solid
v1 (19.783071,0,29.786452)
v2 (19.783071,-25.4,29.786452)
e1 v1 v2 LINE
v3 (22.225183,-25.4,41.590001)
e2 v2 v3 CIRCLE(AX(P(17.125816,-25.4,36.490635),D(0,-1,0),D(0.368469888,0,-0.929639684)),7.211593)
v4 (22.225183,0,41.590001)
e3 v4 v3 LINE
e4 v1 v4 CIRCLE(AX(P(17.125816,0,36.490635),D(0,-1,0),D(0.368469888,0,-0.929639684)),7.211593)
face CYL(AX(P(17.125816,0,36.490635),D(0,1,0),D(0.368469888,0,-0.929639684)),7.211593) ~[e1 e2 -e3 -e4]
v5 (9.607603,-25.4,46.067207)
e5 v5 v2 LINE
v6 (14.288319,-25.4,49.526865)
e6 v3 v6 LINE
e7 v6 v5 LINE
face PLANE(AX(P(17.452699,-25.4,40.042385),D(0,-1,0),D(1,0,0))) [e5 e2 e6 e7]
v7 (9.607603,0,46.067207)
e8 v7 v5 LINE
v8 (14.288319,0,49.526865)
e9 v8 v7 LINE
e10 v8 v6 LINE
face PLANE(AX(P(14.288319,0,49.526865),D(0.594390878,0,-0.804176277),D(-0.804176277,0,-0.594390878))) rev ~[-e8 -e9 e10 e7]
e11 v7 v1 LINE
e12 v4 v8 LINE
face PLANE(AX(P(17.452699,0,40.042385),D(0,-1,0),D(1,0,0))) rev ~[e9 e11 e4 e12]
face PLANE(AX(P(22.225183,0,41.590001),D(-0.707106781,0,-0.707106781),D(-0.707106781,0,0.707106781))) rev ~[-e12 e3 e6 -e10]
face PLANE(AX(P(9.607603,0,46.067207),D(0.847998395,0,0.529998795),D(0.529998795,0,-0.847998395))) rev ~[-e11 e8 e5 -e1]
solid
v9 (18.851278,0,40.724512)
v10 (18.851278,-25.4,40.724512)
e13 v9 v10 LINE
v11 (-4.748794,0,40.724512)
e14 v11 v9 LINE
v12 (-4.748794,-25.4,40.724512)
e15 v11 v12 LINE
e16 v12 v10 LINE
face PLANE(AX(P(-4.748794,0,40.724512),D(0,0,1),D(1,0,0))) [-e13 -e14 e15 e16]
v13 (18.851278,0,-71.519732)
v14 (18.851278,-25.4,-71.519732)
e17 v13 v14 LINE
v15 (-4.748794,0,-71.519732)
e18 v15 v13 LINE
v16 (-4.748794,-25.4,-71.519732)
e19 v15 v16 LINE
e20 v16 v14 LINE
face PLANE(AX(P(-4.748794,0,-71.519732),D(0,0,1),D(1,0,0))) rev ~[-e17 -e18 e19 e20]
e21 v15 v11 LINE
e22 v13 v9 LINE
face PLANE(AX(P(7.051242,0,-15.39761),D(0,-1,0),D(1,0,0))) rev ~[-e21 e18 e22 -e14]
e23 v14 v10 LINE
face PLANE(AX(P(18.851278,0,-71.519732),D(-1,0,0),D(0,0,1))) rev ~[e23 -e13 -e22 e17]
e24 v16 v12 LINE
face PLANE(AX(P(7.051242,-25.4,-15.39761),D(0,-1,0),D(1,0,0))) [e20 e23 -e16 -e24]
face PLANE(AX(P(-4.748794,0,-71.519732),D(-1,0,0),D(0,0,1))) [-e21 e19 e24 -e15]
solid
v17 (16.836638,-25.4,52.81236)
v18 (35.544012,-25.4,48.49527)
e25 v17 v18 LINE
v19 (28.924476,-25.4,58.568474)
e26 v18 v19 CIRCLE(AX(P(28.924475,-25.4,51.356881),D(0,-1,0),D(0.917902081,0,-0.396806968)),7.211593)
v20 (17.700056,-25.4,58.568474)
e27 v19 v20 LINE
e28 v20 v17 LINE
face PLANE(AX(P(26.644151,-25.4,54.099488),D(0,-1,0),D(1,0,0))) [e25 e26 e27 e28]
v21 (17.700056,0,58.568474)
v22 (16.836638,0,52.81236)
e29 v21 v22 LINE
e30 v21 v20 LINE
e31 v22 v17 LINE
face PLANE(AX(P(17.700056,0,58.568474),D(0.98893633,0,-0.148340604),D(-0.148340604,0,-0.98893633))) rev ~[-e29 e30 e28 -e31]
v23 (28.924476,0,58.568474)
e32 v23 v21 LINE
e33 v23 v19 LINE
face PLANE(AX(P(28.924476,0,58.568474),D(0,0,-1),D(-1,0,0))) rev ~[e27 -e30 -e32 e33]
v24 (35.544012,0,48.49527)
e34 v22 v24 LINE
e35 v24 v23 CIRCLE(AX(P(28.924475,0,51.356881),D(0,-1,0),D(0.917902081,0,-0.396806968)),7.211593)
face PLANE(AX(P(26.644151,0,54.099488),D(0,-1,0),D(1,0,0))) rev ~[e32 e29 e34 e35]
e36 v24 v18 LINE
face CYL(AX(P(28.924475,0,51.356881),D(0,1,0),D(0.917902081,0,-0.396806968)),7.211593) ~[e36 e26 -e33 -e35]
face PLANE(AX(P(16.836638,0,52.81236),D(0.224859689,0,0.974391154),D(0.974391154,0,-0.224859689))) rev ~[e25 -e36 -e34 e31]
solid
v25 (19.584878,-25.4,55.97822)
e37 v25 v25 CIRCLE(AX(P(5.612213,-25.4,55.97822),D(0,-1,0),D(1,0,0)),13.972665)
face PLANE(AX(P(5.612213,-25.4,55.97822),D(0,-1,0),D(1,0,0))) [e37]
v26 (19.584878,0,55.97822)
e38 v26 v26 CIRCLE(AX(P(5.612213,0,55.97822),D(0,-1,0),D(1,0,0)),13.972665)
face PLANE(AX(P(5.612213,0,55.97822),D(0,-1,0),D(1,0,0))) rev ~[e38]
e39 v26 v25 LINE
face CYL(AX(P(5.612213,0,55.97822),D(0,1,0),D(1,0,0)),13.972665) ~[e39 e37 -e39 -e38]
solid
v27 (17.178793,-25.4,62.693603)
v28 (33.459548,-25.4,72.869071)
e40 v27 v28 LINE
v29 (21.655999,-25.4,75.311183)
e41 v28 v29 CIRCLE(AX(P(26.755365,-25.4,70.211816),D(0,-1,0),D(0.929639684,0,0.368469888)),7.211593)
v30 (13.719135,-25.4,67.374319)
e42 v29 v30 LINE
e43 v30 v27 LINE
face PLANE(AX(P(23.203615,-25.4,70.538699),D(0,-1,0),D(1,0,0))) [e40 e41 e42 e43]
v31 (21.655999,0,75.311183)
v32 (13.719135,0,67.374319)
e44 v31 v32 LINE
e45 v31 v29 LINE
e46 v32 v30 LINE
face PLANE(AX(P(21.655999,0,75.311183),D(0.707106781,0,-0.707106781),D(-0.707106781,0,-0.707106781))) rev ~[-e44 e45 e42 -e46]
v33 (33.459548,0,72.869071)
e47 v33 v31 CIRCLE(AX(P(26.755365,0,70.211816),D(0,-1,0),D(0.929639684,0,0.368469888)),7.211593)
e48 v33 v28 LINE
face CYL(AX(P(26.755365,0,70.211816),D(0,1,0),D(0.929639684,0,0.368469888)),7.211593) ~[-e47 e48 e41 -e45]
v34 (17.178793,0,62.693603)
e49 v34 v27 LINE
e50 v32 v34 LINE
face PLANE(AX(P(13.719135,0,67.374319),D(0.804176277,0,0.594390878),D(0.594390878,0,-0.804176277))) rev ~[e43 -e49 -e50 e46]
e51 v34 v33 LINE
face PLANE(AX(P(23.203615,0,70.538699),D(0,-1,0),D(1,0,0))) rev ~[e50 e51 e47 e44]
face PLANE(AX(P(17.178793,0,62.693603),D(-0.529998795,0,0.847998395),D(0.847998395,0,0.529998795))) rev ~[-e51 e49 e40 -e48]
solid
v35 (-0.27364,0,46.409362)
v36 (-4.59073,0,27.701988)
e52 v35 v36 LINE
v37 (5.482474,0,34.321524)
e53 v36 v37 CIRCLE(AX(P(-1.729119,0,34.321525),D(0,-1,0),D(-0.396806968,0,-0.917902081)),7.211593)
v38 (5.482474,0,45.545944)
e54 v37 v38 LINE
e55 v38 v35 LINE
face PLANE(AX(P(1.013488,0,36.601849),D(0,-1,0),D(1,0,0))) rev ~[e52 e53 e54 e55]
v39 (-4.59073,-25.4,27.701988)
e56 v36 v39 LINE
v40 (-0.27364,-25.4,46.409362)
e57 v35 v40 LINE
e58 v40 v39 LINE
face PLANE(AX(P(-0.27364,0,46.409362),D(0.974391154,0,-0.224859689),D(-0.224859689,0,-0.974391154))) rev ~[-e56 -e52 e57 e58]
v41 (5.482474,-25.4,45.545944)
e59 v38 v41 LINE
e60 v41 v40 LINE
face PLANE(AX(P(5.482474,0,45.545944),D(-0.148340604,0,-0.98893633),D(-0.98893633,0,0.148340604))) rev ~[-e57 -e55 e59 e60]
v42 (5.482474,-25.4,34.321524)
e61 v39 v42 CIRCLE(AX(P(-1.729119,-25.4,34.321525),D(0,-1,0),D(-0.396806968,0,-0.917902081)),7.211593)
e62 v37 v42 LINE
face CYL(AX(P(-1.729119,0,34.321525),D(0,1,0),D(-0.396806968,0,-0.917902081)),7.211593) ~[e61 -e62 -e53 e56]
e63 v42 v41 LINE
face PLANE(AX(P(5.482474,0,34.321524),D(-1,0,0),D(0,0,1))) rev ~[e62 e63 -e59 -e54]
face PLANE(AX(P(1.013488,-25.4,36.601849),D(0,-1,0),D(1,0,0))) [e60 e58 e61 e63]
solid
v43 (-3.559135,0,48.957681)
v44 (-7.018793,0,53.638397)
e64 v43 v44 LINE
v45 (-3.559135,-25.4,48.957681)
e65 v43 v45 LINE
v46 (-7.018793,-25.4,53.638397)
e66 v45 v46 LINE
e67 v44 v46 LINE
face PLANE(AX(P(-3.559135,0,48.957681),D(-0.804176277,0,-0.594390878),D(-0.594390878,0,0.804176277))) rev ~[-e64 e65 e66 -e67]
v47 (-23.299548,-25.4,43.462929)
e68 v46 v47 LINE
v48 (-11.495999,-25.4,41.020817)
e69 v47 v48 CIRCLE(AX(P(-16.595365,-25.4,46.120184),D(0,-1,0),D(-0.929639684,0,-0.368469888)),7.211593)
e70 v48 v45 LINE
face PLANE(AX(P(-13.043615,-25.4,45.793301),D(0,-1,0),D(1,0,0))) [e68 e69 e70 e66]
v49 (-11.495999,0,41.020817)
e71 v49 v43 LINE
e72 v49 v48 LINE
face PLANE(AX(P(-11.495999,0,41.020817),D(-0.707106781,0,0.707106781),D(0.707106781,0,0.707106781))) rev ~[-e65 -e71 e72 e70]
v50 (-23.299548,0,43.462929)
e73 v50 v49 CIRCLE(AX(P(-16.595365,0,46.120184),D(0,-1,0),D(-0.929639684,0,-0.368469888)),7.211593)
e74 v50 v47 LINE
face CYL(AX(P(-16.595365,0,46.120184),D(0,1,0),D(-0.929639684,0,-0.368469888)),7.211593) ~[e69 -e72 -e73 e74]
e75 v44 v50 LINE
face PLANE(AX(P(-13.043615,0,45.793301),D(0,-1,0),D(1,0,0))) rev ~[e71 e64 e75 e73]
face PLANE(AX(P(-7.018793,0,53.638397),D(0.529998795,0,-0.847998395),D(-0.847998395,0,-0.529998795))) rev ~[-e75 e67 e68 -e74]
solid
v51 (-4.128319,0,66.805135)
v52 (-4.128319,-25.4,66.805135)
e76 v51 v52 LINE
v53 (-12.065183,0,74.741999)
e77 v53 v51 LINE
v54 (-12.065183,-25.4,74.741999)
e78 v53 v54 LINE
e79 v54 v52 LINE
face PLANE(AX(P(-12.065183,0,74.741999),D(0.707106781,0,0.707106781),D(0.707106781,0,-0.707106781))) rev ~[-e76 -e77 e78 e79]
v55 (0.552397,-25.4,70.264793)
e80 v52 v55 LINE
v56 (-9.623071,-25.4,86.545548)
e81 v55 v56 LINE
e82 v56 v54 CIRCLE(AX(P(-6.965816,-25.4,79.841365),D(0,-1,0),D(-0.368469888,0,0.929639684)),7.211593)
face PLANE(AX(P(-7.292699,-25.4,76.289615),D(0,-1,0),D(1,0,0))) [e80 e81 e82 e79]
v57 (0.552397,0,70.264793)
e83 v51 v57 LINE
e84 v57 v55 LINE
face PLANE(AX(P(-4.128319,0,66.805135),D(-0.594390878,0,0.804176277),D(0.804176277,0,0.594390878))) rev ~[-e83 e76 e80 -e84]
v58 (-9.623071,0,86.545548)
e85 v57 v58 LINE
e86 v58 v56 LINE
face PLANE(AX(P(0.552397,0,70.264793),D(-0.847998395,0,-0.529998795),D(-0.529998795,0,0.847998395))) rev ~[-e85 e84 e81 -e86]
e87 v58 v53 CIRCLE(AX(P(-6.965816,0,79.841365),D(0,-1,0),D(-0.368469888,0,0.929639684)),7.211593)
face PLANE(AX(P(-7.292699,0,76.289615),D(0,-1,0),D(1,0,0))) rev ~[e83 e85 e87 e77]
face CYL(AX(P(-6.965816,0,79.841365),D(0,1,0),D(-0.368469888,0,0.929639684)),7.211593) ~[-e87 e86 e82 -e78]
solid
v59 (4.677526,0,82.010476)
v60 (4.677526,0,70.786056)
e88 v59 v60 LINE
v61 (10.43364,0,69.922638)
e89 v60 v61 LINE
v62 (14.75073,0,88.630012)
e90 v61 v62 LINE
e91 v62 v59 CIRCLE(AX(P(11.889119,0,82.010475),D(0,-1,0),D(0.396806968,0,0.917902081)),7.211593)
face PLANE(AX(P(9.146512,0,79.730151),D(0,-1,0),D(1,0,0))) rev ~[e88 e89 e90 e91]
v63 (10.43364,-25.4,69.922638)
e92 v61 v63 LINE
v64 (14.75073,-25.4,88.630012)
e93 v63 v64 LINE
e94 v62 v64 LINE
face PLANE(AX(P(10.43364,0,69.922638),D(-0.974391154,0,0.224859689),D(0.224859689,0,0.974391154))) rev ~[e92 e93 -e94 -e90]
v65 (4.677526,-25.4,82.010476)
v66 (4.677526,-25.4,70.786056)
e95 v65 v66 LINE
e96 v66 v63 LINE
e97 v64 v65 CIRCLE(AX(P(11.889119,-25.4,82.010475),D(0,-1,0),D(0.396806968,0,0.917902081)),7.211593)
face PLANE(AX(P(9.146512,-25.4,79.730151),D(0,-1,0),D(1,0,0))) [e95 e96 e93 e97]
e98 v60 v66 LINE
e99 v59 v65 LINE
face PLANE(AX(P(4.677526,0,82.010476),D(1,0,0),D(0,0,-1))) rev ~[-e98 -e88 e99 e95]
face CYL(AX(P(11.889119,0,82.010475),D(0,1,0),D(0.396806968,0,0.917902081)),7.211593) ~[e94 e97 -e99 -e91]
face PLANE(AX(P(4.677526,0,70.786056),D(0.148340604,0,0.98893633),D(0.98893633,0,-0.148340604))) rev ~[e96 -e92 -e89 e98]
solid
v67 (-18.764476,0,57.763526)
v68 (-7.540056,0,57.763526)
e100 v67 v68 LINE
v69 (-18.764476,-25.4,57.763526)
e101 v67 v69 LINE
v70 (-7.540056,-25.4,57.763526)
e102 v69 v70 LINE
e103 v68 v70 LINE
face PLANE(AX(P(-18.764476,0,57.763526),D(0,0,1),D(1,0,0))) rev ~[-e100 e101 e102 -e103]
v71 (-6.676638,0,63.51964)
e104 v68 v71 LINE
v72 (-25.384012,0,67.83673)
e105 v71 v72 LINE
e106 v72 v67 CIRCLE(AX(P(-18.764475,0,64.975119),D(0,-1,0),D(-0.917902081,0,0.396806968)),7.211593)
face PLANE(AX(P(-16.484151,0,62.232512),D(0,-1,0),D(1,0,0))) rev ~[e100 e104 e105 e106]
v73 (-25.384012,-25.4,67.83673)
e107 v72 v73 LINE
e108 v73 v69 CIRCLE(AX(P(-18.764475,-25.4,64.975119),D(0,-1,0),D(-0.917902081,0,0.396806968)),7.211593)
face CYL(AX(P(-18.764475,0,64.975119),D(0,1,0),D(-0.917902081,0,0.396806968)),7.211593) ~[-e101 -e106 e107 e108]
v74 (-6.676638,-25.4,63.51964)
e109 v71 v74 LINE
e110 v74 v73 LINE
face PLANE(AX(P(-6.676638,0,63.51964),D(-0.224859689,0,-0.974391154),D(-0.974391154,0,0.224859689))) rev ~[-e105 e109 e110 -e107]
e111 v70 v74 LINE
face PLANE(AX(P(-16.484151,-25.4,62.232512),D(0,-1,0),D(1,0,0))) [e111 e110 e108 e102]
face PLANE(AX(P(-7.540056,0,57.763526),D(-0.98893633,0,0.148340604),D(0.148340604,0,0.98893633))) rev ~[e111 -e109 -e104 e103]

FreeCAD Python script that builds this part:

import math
import FreeCAD as App
import Part
import Sketcher
Q = App.Units.Quantity

doc = App.newDocument("Part")
body = doc.addObject("PartDesign::Body", "Body")

# Sketch on XZ plane
sketch1 = body.newObject("Sketcher::SketchObject", "Sketch")
sketch1.AttachmentSupport = (doc.getObject("XZ_Plane"), [""])
sketch1.MapMode = "FlatFace"
sketch1.addGeometry([
    Part.LineSegment(App.Vector(-4.748794, 40.724512, 0), App.Vector(-4.748794, -71.519732, 0)),
    Part.LineSegment(App.Vector(-4.748794, -71.519732, 0), App.Vector(18.851278, -71.519732, 0)),
    Part.LineSegment(App.Vector(18.851278, -71.519732, 0), App.Vector(18.851278, 40.724512, 0)),
    Part.LineSegment(App.Vector(18.851278, 40.724512, 0), App.Vector(-4.748794, 40.724512, 0)),
], False)
sketch1.addConstraint([
    Sketcher.Constraint("Coincident", 0, 2, 1, 1),
    Sketcher.Constraint("Coincident", 1, 2, 2, 1),
    Sketcher.Constraint("Coincident", 2, 2, 3, 1),
    Sketcher.Constraint("Coincident", 3, 2, 0, 1),
    Sketcher.Constraint("Vertical", 0),
    Sketcher.Constraint("Horizontal", 1),
    Sketcher.Constraint("Vertical", 2),
    Sketcher.Constraint("Horizontal", 3),
    Sketcher.Constraint("DistanceX", 1, 1, 1, 2, Q("23.600073 mm")),
    Sketcher.Constraint("DistanceY", 0, 2, 0, 1, Q("112.244244 mm")),
    Sketcher.Constraint("DistanceX", -1, 1, 1, 2, Q("18.851278 mm")),
    Sketcher.Constraint("DistanceY", -1, 1, 2, 2, Q("40.724512 mm")),
])
pad1 = body.newObject("PartDesign::Pad", "Pad")
pad1.Profile = sketch1
pad1.Length = Q("1 in")
body2 = doc.addObject("PartDesign::Body", "Body001")

# Sketch on XZ plane
sketch2 = body2.newObject("Sketcher::SketchObject", "Sketch001")
sketch2.AttachmentSupport = (doc.getObject("XZ_Plane001"), [""])
sketch2.MapMode = "FlatFace"
sketch2.addGeometry(Part.Circle(App.Vector(5.612213, 55.97822, 0), App.Vector(0, 0, 1), 13.972665), False)
sketch2.addConstraint([
    Sketcher.Constraint("Diameter", 0, Q("27.94533 mm")),
    Sketcher.Constraint("DistanceY", -1, 1, 0, 3, Q("55.97822 mm")),
    Sketcher.Constraint("DistanceX", -1, 1, 0, 3, Q("5.612213 mm")),
])
pad2 = body2.newObject("PartDesign::Pad", "Pad001")
pad2.Profile = sketch2
pad2.Length = Q("1 in")
body3 = doc.addObject("PartDesign::Body", "Body002")
body3.AllowCompound = True

# Sketch on XZ plane
sketch3 = body3.newObject("Sketcher::SketchObject", "Sketch002")
sketch3.AttachmentSupport = (doc.getObject("XZ_Plane002"), [""])
sketch3.MapMode = "FlatFace"
sketch3.addGeometry([
    Part.LineSegment(App.Vector(-3.559135, 48.957681, 0), App.Vector(-7.018793, 53.638397, 0)),  # 0
    Part.LineSegment(App.Vector(-7.018793, 53.638397, 0), App.Vector(-23.299548, 43.462929, 0)),  # 1
    Part.ArcOfCircle(Part.Circle(App.Vector(-16.595365, 46.120184, 0), App.Vector(0, 0, 1), 7.211593), math.radians(-158.378718), math.radians(-45.000006)),  # 2
    Part.LineSegment(App.Vector(-11.495999, 41.020817, 0), App.Vector(-3.559135, 48.957681, 0)),  # 3
    Part.LineSegment(App.Vector(-7.540056, 57.763526, 0), App.Vector(-6.676638, 63.51964, 0)),  # 4
    Part.LineSegment(App.Vector(-6.676638, 63.51964, 0), App.Vector(-25.384012, 67.83673, 0)),  # 5
    Part.ArcOfCircle(Part.Circle(App.Vector(-18.764475, 64.975119, 0), App.Vector(0, 0, 1), 7.211593), math.radians(156.621282), math.radians(269.999995)),  # 6
    Part.LineSegment(App.Vector(-18.764476, 57.763526, 0), App.Vector(-7.540056, 57.763526, 0)),  # 7
    Part.LineSegment(App.Vector(-4.128319, 66.805135, 0), App.Vector(0.552397, 70.264793, 0)),  # 8
    Part.LineSegment(App.Vector(0.552397, 70.264793, 0), App.Vector(-9.623071, 86.545548, 0)),  # 9
    Part.ArcOfCircle(Part.Circle(App.Vector(-6.965816, 79.841365, 0), App.Vector(0, 0, 1), 7.211593), math.radians(111.621282), math.radians(224.999994)),  # 10
    Part.LineSegment(App.Vector(-12.065183, 74.741999, 0), App.Vector(-4.128319, 66.805135, 0)),  # 11
    Part.LineSegment(App.Vector(4.677526, 70.786056, 0), App.Vector(10.43364, 69.922638, 0)),  # 12
    Part.LineSegment(App.Vector(10.43364, 69.922638, 0), App.Vector(14.75073, 88.630012, 0)),  # 13
    Part.ArcOfCircle(Part.Circle(App.Vector(11.889119, 82.010475, 0), App.Vector(0, 0, 1), 7.211593), math.radians(66.621282), math.radians(179.999995)),  # 14
    Part.LineSegment(App.Vector(4.677526, 82.010476, 0), App.Vector(4.677526, 70.786056, 0)),  # 15
    Part.LineSegment(App.Vector(13.719135, 67.374319, 0), App.Vector(17.178793, 62.693603, 0)),  # 16
    Part.LineSegment(App.Vector(17.178793, 62.693603, 0), App.Vector(33.459548, 72.869071, 0)),  # 17
    Part.ArcOfCircle(Part.Circle(App.Vector(26.755365, 70.211816, 0), App.Vector(0, 0, 1), 7.211593), math.radians(21.621282), math.radians(134.999994)),  # 18
    Part.LineSegment(App.Vector(21.655999, 75.311183, 0), App.Vector(13.719135, 67.374319, 0)),  # 19
    Part.LineSegment(App.Vector(17.700056, 58.568474, 0), App.Vector(16.836638, 52.81236, 0)),  # 20
    Part.LineSegment(App.Vector(16.836638, 52.81236, 0), App.Vector(35.544012, 48.49527, 0)),  # 21
    Part.ArcOfCircle(Part.Circle(App.Vector(28.924475, 51.356881, 0), App.Vector(0, 0, 1), 7.211593), math.radians(-23.378718), math.radians(89.999995)),  # 22
    Part.LineSegment(App.Vector(28.924476, 58.568474, 0), App.Vector(17.700056, 58.568474, 0)),  # 23
    Part.LineSegment(App.Vector(14.288319, 49.526865, 0), App.Vector(9.607603, 46.067207, 0)),  # 24
    Part.LineSegment(App.Vector(9.607603, 46.067207, 0), App.Vector(19.783071, 29.786452, 0)),  # 25
    Part.ArcOfCircle(Part.Circle(App.Vector(17.125816, 36.490635, 0), App.Vector(0, 0, 1), 7.211593), math.radians(-68.378718), math.radians(44.999994)),  # 26
    Part.LineSegment(App.Vector(22.225183, 41.590001, 0), App.Vector(14.288319, 49.526865, 0)),  # 27
    Part.LineSegment(App.Vector(5.482474, 45.545944, 0), App.Vector(-0.27364, 46.409362, 0)),  # 28
    Part.LineSegment(App.Vector(-0.27364, 46.409362, 0), App.Vector(-4.59073, 27.701988, 0)),  # 29
    Part.ArcOfCircle(Part.Circle(App.Vector(-1.729119, 34.321525, 0), App.Vector(0, 0, 1), 7.211593), math.radians(-113.378718), math.radians(-0.000005)),  # 30
    Part.LineSegment(App.Vector(5.482474, 34.321524, 0), App.Vector(5.482474, 45.545944, 0)),  # 31
], False)
sketch3.addConstraint([
    Sketcher.Constraint("Coincident", 0, 2, 1, 1),
    Sketcher.Constraint("Coincident", 1, 2, 2, 1),
    Sketcher.Constraint("Tangent", 2, 2, 3, 1),
    Sketcher.Constraint("Coincident", 3, 2, 0, 1),
    Sketcher.Constraint("Coincident", 4, 2, 5, 1),
    Sketcher.Constraint("Coincident", 5, 2, 6, 1),
    Sketcher.Constraint("Tangent", 6, 2, 7, 1),
    Sketcher.Constraint("Coincident", 7, 2, 4, 1),
    Sketcher.Constraint("Coincident", 8, 2, 9, 1),
    Sketcher.Constraint("Coincident", 9, 2, 10, 1),
    Sketcher.Constraint("Tangent", 10, 2, 11, 1),
    Sketcher.Constraint("Coincident", 11, 2, 8, 1),
    Sketcher.Constraint("Coincident", 12, 2, 13, 1),
    Sketcher.Constraint("Coincident", 13, 2, 14, 1),
    Sketcher.Constraint("Tangent", 14, 2, 15, 1),
    Sketcher.Constraint("Coincident", 15, 2, 12, 1),
    Sketcher.Constraint("Coincident", 16, 2, 17, 1),
    Sketcher.Constraint("Coincident", 17, 2, 18, 1),
    Sketcher.Constraint("Tangent", 18, 2, 19, 1),
    Sketcher.Constraint("Coincident", 19, 2, 16, 1),
    Sketcher.Constraint("Coincident", 20, 2, 21, 1),
    Sketcher.Constraint("Coincident", 21, 2, 22, 1),
    Sketcher.Constraint("Tangent", 22, 2, 23, 1),
    Sketcher.Constraint("Coincident", 23, 2, 20, 1),
    Sketcher.Constraint("Coincident", 24, 2, 25, 1),
    Sketcher.Constraint("Coincident", 25, 2, 26, 1),
    Sketcher.Constraint("Tangent", 26, 2, 27, 1),
    Sketcher.Constraint("Coincident", 27, 2, 24, 1),
    Sketcher.Constraint("Coincident", 28, 2, 29, 1),
    Sketcher.Constraint("Coincident", 29, 2, 30, 1),
    Sketcher.Constraint("Tangent", 30, 2, 31, 1),
    Sketcher.Constraint("Coincident", 31, 2, 28, 1),
    Sketcher.Constraint("Horizontal", 7),
    Sketcher.Constraint("Vertical", 15),
    Sketcher.Constraint("Horizontal", 23),
    Sketcher.Constraint("Vertical", 31),
    Sketcher.Constraint("Equal", 2, 6),
    Sketcher.Constraint("Equal", 6, 10),
    Sketcher.Constraint("Equal", 10, 14),
    Sketcher.Constraint("Equal", 14, 18),
    Sketcher.Constraint("Equal", 18, 22),
    Sketcher.Constraint("Equal", 22, 26),
    Sketcher.Constraint("Equal", 26, 30),
    Sketcher.Constraint("Perpendicular", 0, 8),
    Sketcher.Constraint("Perpendicular", 1, 9),
    Sketcher.Constraint("Perpendicular", 3, 11),
    Sketcher.Constraint("Perpendicular", 4, 12),
    Sketcher.Constraint("Perpendicular", 5, 13),
    Sketcher.Constraint("Perpendicular", 8, 16),
    Sketcher.Constraint("Perpendicular", 9, 17),
    Sketcher.Constraint("Perpendicular", 11, 19),
    Sketcher.Constraint("Perpendicular", 12, 20),
    Sketcher.Constraint("Perpendicular", 13, 21),
    Sketcher.Constraint("Perpendicular", 16, 24),
    Sketcher.Constraint("Perpendicular", 17, 25),
    Sketcher.Constraint("Perpendicular", 19, 27),
    Sketcher.Constraint("Perpendicular", 20, 28),
    Sketcher.Constraint("Perpendicular", 21, 29),
    Sketcher.Constraint("Equal", 7, 23),
    Sketcher.Constraint("Equal", 23, 15),
    Sketcher.Constraint("Equal", 15, 31),
    Sketcher.Constraint("Equal", 0, 4),
    Sketcher.Constraint("Equal", 1, 5),
    Sketcher.Constraint("Equal", 4, 8),
    Sketcher.Constraint("Equal", 5, 9),
    Sketcher.Constraint("Equal", 8, 12),
    Sketcher.Constraint("Equal", 12, 16),
    Sketcher.Constraint("Equal", 13, 17),
    Sketcher.Constraint("Equal", 16, 20),
    Sketcher.Constraint("Equal", 20, 24),
    Sketcher.Constraint("Equal", 21, 25),
    Sketcher.Constraint("Equal", 24, 28),
    Sketcher.Constraint("Angle", 3, Q("45 deg")),
    Sketcher.Constraint("Radius", 2, Q("7.211593 mm")),
    Sketcher.Constraint("DistanceX", 7, 1, 7, 2, Q("11.22442 mm")),
    Sketcher.Constraint("DistanceX", 2, 2, -1, 1, Q("11.495999 mm")),
    Sketcher.Constraint("DistanceY", -1, 1, 10, 2, Q("74.741999 mm")),
    Sketcher.Constraint("DistanceX", -1, 1, 18, 2, Q("21.655999 mm")),
    Sketcher.Constraint("DistanceY", -1, 1, 26, 2, Q("41.590001 mm")),
    Sketcher.Constraint("DistanceY", 4, 2, 12, 2, Q("6.402998 mm")),
    Sketcher.Constraint("DistanceX", 12, 2, 20, 2, Q("6.402998 mm")),
    Sketcher.Constraint("Distance", 0, Q("5.82051 mm")),
    Sketcher.Constraint("Distance", 1, Q("19.19904 mm")),
    Sketcher.Constraint("Distance", 3, Q("11.224421 mm")),
    Sketcher.Constraint("DistanceY", -1, 1, 6, 3, Q("64.975119 mm")),
    Sketcher.Constraint("DistanceX", -1, 1, 14, 3, Q("11.889119 mm")),
    Sketcher.Constraint("DistanceY", -1, 1, 22, 3, Q("51.356881 mm")),
    Sketcher.Constraint("DistanceX", 30, 3, -1, 1, Q("1.729119 mm")),
    Sketcher.Constraint("DistanceX", 1, 2, -1, 1, Q("23.299548 mm")),
    Sketcher.Constraint("DistanceY", -1, 1, 1, 2, Q("43.462929 mm")),
    Sketcher.Constraint("DistanceY", -1, 1, 4, 2, Q("63.51964 mm")),
    Sketcher.Constraint("DistanceX", 5, 2, -1, 1, Q("25.384012 mm")),
    Sketcher.Constraint("DistanceX", 9, 2, -1, 1, Q("9.623071 mm")),
    Sketcher.Constraint("DistanceY", -1, 1, 17, 2, Q("72.869071 mm")),
    Sketcher.Constraint("DistanceX", -1, 1, 25, 2, Q("19.783071 mm")),
    Sketcher.Constraint("DistanceY", -1, 1, 29, 2, Q("27.701988 mm")),
])
pad3 = body3.newObject("PartDesign::Pad", "Pad002")
pad3.Profile = sketch3
pad3.Length = Q("1 in")

doc.recompute()
